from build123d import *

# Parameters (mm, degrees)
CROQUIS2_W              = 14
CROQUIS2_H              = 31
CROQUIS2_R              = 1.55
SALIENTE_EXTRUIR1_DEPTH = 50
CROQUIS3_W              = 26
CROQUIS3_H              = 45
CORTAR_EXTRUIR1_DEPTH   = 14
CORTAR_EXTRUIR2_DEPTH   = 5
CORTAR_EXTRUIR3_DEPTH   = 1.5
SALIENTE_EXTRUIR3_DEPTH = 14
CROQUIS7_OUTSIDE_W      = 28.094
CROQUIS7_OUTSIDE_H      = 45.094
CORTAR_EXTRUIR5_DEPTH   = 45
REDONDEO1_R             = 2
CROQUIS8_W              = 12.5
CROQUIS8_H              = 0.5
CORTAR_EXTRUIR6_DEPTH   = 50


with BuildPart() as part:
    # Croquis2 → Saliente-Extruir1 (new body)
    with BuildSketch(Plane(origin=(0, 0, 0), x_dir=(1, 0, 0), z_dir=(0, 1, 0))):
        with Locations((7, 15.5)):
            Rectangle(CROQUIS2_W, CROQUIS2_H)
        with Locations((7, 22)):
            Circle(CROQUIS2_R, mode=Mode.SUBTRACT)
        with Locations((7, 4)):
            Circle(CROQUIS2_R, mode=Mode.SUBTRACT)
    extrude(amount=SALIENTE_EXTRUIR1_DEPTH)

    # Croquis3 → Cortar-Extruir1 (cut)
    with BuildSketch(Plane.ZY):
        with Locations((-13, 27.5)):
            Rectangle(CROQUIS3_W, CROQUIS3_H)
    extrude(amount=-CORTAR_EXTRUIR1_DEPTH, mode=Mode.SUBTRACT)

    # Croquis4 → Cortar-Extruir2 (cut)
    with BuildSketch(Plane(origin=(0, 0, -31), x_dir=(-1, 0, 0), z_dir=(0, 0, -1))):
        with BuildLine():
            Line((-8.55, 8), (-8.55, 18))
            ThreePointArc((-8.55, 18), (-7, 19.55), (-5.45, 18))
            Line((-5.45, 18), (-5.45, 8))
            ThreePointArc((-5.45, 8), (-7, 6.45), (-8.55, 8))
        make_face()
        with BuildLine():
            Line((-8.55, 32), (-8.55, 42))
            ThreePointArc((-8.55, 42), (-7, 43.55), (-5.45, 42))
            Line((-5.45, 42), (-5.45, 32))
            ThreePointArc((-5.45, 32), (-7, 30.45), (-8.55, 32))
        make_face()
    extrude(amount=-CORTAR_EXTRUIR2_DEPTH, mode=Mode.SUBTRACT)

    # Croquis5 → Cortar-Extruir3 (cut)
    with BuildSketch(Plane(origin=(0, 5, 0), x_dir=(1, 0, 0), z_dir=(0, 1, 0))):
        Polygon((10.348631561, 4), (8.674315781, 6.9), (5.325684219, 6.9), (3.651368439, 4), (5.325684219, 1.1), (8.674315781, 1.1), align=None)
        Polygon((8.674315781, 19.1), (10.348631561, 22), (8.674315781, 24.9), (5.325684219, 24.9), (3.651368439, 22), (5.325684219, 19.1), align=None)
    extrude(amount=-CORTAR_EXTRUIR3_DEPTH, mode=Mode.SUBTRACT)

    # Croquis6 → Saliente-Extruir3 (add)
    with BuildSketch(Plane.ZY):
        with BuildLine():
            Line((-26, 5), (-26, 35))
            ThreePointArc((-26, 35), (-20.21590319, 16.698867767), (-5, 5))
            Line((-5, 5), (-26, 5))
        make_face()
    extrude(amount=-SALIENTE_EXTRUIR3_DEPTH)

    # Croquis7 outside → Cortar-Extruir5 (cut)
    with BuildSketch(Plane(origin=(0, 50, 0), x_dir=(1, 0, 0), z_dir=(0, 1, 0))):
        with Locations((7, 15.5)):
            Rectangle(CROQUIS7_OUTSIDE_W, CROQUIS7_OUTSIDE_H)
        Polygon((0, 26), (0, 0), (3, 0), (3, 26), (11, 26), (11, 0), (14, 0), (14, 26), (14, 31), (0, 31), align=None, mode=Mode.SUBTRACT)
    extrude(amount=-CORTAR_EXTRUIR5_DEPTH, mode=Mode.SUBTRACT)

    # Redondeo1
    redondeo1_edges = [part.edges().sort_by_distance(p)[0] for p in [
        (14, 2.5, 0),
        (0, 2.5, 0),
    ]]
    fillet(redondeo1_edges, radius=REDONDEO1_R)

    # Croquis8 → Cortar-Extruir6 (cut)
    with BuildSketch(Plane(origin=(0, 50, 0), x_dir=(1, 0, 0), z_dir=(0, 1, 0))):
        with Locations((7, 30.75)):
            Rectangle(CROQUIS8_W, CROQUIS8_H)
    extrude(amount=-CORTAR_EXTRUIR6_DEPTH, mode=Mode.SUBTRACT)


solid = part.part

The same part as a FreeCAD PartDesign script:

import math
import FreeCAD as App
import Part
import Sketcher

V = App.Vector
Q = App.Units.Quantity


def edges_at(feature, points):
    """Names of the edges that pass closest to the given points."""
    edges = feature.Shape.Edges
    near = lambda p: min(range(len(edges)), key=lambda i: edges[i].distToShape(Part.Vertex(*p))[0])
    return sorted({f"Edge{near(p) + 1}" for p in points})

doc = App.newDocument("Part")
body = doc.addObject("PartDesign::Body", "Body")

# Sketch on XZ plane
sketch1 = body.newObject("Sketcher::SketchObject", "Sketch")
sketch1.AttachmentSupport = (doc.getObject("XZ_Plane"), [""])
sketch1.MapMode = "FlatFace"
sketch1.addGeometry(Part.LineSegment(V(0, -31, 0), V(0, 0, 0)), False)
sketch1.addGeometry(Part.LineSegment(V(0, 0, 0), V(14, 0, 0)), False)
sketch1.addGeometry(Part.LineSegment(V(14, 0, 0), V(14, -31, 0)), False)
sketch1.addGeometry(Part.LineSegment(V(14, -31, 0), V(0, -31, 0)), False)
sketch1.addGeometry(Part.Circle(V(7, -4, 0), V(0, 0, 1), 1.55), False)
sketch1.addGeometry(Part.Circle(V(7, -22, 0), V(0, 0, 1), 1.55), False)
sketch1.addConstraint(Sketcher.Constraint("Coincident", 0, 2, 1, 1))
sketch1.addConstraint(Sketcher.Constraint("Coincident", 1, 2, 2, 1))
sketch1.addConstraint(Sketcher.Constraint("Coincident", 2, 2, 3, 1))
sketch1.addConstraint(Sketcher.Constraint("Coincident", 3, 2, 0, 1))
sketch1.addConstraint(Sketcher.Constraint("Vertical", 0))
sketch1.addConstraint(Sketcher.Constraint("Horizontal", 1))
sketch1.addConstraint(Sketcher.Constraint("Vertical", 2))
sketch1.addConstraint(Sketcher.Constraint("Horizontal", 3))
sketch1.addConstraint(Sketcher.Constraint("Coincident", 0, 2, -1, 1))
sketch1.addConstraint(Sketcher.Constraint("Equal", 4, 5))
sketch1.addConstraint(Sketcher.Constraint("Vertical", 4, 3, 5, 3))
sketch1.addConstraint(Sketcher.Constraint("Diameter", 4, Q("3.1 mm")))
sketch1.addConstraint(Sketcher.Constraint("DistanceX", 1, 1, 1, 2, Q("14 mm")))
sketch1.addConstraint(Sketcher.Constraint("DistanceY", 0, 1, 0, 2, Q("31 mm")))
sketch1.addConstraint(Sketcher.Constraint("DistanceX", -1, 1, 4, 3, Q("7 mm")))
sketch1.addConstraint(Sketcher.Constraint("DistanceY", 4, 3, -1, 1, Q("4 mm")))
sketch1.addConstraint(Sketcher.Constraint("DistanceY", 5, 3, -1, 1, Q("22 mm")))
pad1 = body.newObject("PartDesign::Pad", "Pad")
pad1.Profile = sketch1
pad1.Length = 50
pad1.Reversed = True

# Sketch on YZ plane
sketch2 = body.newObject("Sketcher::SketchObject", "Sketch001")
sketch2.AttachmentSupport = (doc.getObject("YZ_Plane"), [""])
sketch2.MapMode = "FlatFace"
sketch2.addGeometry(Part.LineSegment(V(50, -26, 0), V(5, -26, 0)), False)
sketch2.addGeometry(Part.LineSegment(V(5, -26, 0), V(5, 0, 0)), False)
sketch2.addGeometry(Part.LineSegment(V(5, 0, 0), V(50, 0, 0)), False)
sketch2.addGeometry(Part.LineSegment(V(50, 0, 0), V(50, -26, 0)), False)
sketch2.addConstraint(Sketcher.Constraint("Coincident", 0, 2, 1, 1))
sketch2.addConstraint(Sketcher.Constraint("Coincident", 1, 2, 2, 1))
sketch2.addConstraint(Sketcher.Constraint("Coincident", 2, 2, 3, 1))
sketch2.addConstraint(Sketcher.Constraint("Coincident", 3, 2, 0, 1))
sketch2.addConstraint(Sketcher.Constraint("Horizontal", 0))
sketch2.addConstraint(Sketcher.Constraint("Vertical", 1))
sketch2.addConstraint(Sketcher.Constraint("Horizontal", 2))
sketch2.addConstraint(Sketcher.Constraint("Vertical", 3))
sketch2.addConstraint(Sketcher.Constraint("PointOnObject", 1, 2, -1))
sketch2.addConstraint(Sketcher.Constraint("DistanceX", 0, 2, 0, 1, Q("45 mm")))
sketch2.addConstraint(Sketcher.Constraint("DistanceY", 1, 1, 1, 2, Q("26 mm")))
sketch2.addConstraint(Sketcher.Constraint("DistanceX", -1, 1, 0, 2, Q("5 mm")))
pocket1 = body.newObject("PartDesign::Pocket", "Pocket")
pocket1.Profile = sketch2
pocket1.Length = 14
pocket1.Reversed = True

# Sketch on XY plane
sketch3 = body.newObject("Sketcher::SketchObject", "Sketch002")
sketch3.AttachmentSupport = (doc.getObject("XY_Plane"), [""])
sketch3.MapMode = "FlatFace"
sketch3.AttachmentOffset = App.Placement(V(0, 0, -31), App.Rotation())
sketch3.addGeometry(Part.LineSegment(V(8.55, 18, 0), V(8.55, 8, 0)), False)
sketch3.addGeometry(Part.ArcOfCircle(Part.Circle(V(7, 8, 0), V(0, 0, 1), 1.55), math.radians(180), math.radians(360)), False)
sketch3.addGeometry(Part.LineSegment(V(5.45, 8, 0), V(5.45, 18, 0)), False)
sketch3.addGeometry(Part.ArcOfCircle(Part.Circle(V(7, 18, 0), V(0, 0, 1), 1.55), math.radians(0), math.radians(180)), False)
sketch3.addGeometry(Part.LineSegment(V(8.55, 42, 0), V(8.55, 32, 0)), False)
sketch3.addGeometry(Part.ArcOfCircle(Part.Circle(V(7, 32, 0), V(0, 0, 1), 1.55), math.radians(180), math.radians(360)), False)
sketch3.addGeometry(Part.LineSegment(V(5.45, 32, 0), V(5.45, 42, 0)), False)
sketch3.addGeometry(Part.ArcOfCircle(Part.Circle(V(7, 42, 0), V(0, 0, 1), 1.55), math.radians(0), math.radians(180)), False)
sketch3.addConstraint(Sketcher.Constraint("Tangent", 0, 2, 1, 2))
sketch3.addConstraint(Sketcher.Constraint("Tangent", 1, 1, 2, 1))
sketch3.addConstraint(Sketcher.Constraint("Tangent", 2, 2, 3, 2))
sketch3.addConstraint(Sketcher.Constraint("Tangent", 3, 1, 0, 1))
sketch3.addConstraint(Sketcher.Constraint("Tangent", 4, 2, 5, 2))
sketch3.addConstraint(Sketcher.Constraint("Tangent", 5, 1, 6, 1))
sketch3.addConstraint(Sketcher.Constraint("Tangent", 6, 2, 7, 2))
sketch3.addConstraint(Sketcher.Constraint("Tangent", 7, 1, 4, 1))
sketch3.addConstraint(Sketcher.Constraint("Vertical", 0))
sketch3.addConstraint(Sketcher.Constraint("Vertical", 2))
sketch3.addConstraint(Sketcher.Constraint("Vertical", 4))
sketch3.addConstraint(Sketcher.Constraint("Vertical", 6))
sketch3.addConstraint(Sketcher.Constraint("Equal", 3, 5))
sketch3.addConstraint(Sketcher.Constraint("Vertical", 3, 3, 5, 3))
sketch3.addConstraint(Sketcher.Constraint("Equal", 2, 4))
sketch3.addConstraint(Sketcher.Constraint("DistanceY", 0, 2, 0, 1, Q("10 mm")))
sketch3.addConstraint(Sketcher.Constraint("Radius", 1, Q("1.55 mm")))
sketch3.addConstraint(Sketcher.Constraint("DistanceX", -1, 1, 1, 3, Q("7 mm")))
sketch3.addConstraint(Sketcher.Constraint("DistanceY", -1, 1, 1, 3, Q("8 mm")))
sketch3.addConstraint(Sketcher.Constraint("DistanceY", -1, 1, 5, 3, Q("32 mm")))
pocket2 = body.newObject("PartDesign::Pocket", "Pocket001")
pocket2.Profile = sketch3
pocket2.Length = 5
pocket2.Reversed = True

# Sketch on XZ plane
sketch4 = body.newObject("Sketcher::SketchObject", "Sketch003")
sketch4.AttachmentSupport = (doc.getObject("XZ_Plane"), [""])
sketch4.MapMode = "FlatFace"
sketch4.AttachmentOffset = App.Placement(V(0, 0, -5), App.Rotation())
sketch4.addGeometry(Part.LineSegment(V(10.348632, -4, 0), V(8.674316, -6.9, 0)), False)
sketch4.addGeometry(Part.LineSegment(V(8.674316, -6.9, 0), V(5.325684, -6.9, 0)), False)
sketch4.addGeometry(Part.LineSegment(V(5.325684, -6.9, 0), V(3.651368, -4, 0)), False)
sketch4.addGeometry(Part.LineSegment(V(3.651368, -4, 0), V(5.325684, -1.1, 0)), False)
sketch4.addGeometry(Part.LineSegment(V(5.325684, -1.1, 0), V(8.674316, -1.1, 0)), False)
sketch4.addGeometry(Part.LineSegment(V(8.674316, -1.1, 0), V(10.348632, -4, 0)), False)
sketch4.addGeometry(Part.LineSegment(V(8.674316, -19.1, 0), V(10.348632, -22, 0)), False)
sketch4.addGeometry(Part.LineSegment(V(10.348632, -22, 0), V(8.674316, -24.9, 0)), False)
sketch4.addGeometry(Part.LineSegment(V(8.674316, -24.9, 0), V(5.325684, -24.9, 0)), False)
sketch4.addGeometry(Part.LineSegment(V(5.325684, -24.9, 0), V(3.651368, -22, 0)), False)
sketch4.addGeometry(Part.LineSegment(V(3.651368, -22, 0), V(5.325684, -19.1, 0)), False)
sketch4.addGeometry(Part.LineSegment(V(5.325684, -19.1, 0), V(8.674316, -19.1, 0)), False)
sketch4.addConstraint(Sketcher.Constraint("Coincident", 0, 2, 1, 1))
sketch4.addConstraint(Sketcher.Constraint("Coincident", 1, 2, 2, 1))
sketch4.addConstraint(Sketcher.Constraint("Coincident", 2, 2, 3, 1))
sketch4.addConstraint(Sketcher.Constraint("Coincident", 3, 2, 4, 1))
sketch4.addConstraint(Sketcher.Constraint("Coincident", 4, 2, 5, 1))
sketch4.addConstraint(Sketcher.Constraint("Coincident", 5, 2, 0, 1))
sketch4.addConstraint(Sketcher.Constraint("Coincident", 6, 2, 7, 1))
sketch4.addConstraint(Sketcher.Constraint("Coincident", 7, 2, 8, 1))
sketch4.addConstraint(Sketcher.Constraint("Coincident", 8, 2, 9, 1))
sketch4.addConstraint(Sketcher.Constraint("Coincident", 9, 2, 10, 1))
sketch4.addConstraint(Sketcher.Constraint("Coincident", 10, 2, 11, 1))
sketch4.addConstraint(Sketcher.Constraint("Coincident", 11, 2, 6, 1))
sketch4.addConstraint(Sketcher.Constraint("Horizontal", 1))
sketch4.addConstraint(Sketcher.Constraint("Horizontal", 4))
sketch4.addConstraint(Sketcher.Constraint("Horizontal", 8))
sketch4.addConstraint(Sketcher.Constraint("Horizontal", 11))
sketch4.addConstraint(Sketcher.Constraint("Parallel", 0, 3))
sketch4.addConstraint(Sketcher.Constraint("Parallel", 2, 5))
sketch4.addConstraint(Sketcher.Constraint("Parallel", 5, 6))
sketch4.addConstraint(Sketcher.Constraint("Parallel", 3, 7))
sketch4.addConstraint(Sketcher.Constraint("Parallel", 6, 9))
sketch4.addConstraint(Sketcher.Constraint("Parallel", 7, 10))
sketch4.addConstraint(Sketcher.Constraint("Horizontal", 2, 2, 5, 2))
sketch4.addConstraint(Sketcher.Constraint("Horizontal", 6, 2, 9, 2))
sketch4.addConstraint(Sketcher.Constraint("Vertical", 1, 2, 3, 2))
sketch4.addConstraint(Sketcher.Constraint("Vertical", 0, 2, 4, 2))
sketch4.addConstraint(Sketcher.Constraint("Vertical", 5, 2, 6, 2))
sketch4.addConstraint(Sketcher.Constraint("Vertical", 4, 2, 7, 2))
sketch4.addConstraint(Sketcher.Constraint("Vertical", 3, 2, 8, 2))
sketch4.addConstraint(Sketcher.Constraint("Vertical", 8, 2, 10, 2))
sketch4.addConstraint(Sketcher.Constraint("Angle", 0, Q("-120 deg")))
sketch4.addConstraint(Sketcher.Constraint("DistanceY", 2, 2, -1, 1, Q("4 mm")))
sketch4.addConstraint(Sketcher.Constraint("DistanceY", 6, 2, -1, 1, Q("22 mm")))
sketch4.addConstraint(Sketcher.Constraint("DistanceY", 0, 2, -1, 1, Q("6.9 mm")))
sketch4.addConstraint(Sketcher.Constraint("DistanceX", 1, 2, 1, 1, Q("3.348632 mm")))
sketch4.addConstraint(Sketcher.Constraint("DistanceX", -1, 1, 2, 2, Q("3.651368 mm")))
pocket3 = body.newObject("PartDesign::Pocket", "Pocket002")
pocket3.Profile = sketch4
pocket3.Length = 1.5
pocket3.Reversed = True

# Sketch on YZ plane
sketch5 = body.newObject("Sketcher::SketchObject", "Sketch004")
sketch5.AttachmentSupport = (doc.getObject("YZ_Plane"), [""])
sketch5.MapMode = "FlatFace"
sketch5.addGeometry(Part.LineSegment(V(35, -26, 0), V(5, -26, 0)), False)
sketch5.addGeometry(Part.LineSegment(V(5, -26, 0), V(5, -5, 0)), False)
sketch5.addGeometry(Part.ArcOfCircle(Part.Circle(V(35.04825, 5.9975, 0), V(0, 0, 1), 31.997536), math.radians(-159.897642), math.radians(-90.086398)), False)
sketch5.addConstraint(Sketcher.Constraint("Coincident", 0, 2, 1, 1))
sketch5.addConstraint(Sketcher.Constraint("Coincident", 1, 2, 2, 1))
sketch5.addConstraint(Sketcher.Constraint("Coincident", 2, 2, 0, 1))
sketch5.addConstraint(Sketcher.Constraint("Horizontal", 0))
sketch5.addConstraint(Sketcher.Constraint("Vertical", 1))
sketch5.addConstraint(Sketcher.Constraint("DistanceX", 0, 2, 0, 1, Q("30 mm")))
sketch5.addConstraint(Sketcher.Constraint("DistanceY", 1, 1, 1, 2, Q("21 mm")))
sketch5.addConstraint(Sketcher.Constraint("DistanceX", -1, 1, 0, 2, Q("5 mm")))
sketch5.addConstraint(Sketcher.Constraint("DistanceY", 0, 2, -1, 1, Q("26 mm")))
sketch5.addConstraint(Sketcher.Constraint("Radius", 2, Q("31.997536 mm")))
pad2 = body.newObject("PartDesign::Pad", "Pad001")
pad2.Profile = sketch5
pad2.Length = 14

# Sketch on XZ plane
sketch6 = body.newObject("Sketcher::SketchObject", "Sketch005")
sketch6.AttachmentSupport = (doc.getObject("XZ_Plane"), [""])
sketch6.MapMode = "FlatFace"
sketch6.AttachmentOffset = App.Placement(V(0, 0, -50), App.Rotation())
sketch6.addGeometry(Part.LineSegment(V(-7.047, -38.047, 0), V(-7.047, 7.047, 0)), False)
sketch6.addGeometry(Part.LineSegment(V(-7.047, 7.047, 0), V(21.047, 7.047, 0)), False)
sketch6.addGeometry(Part.LineSegment(V(21.047, 7.047, 0), V(21.047, -38.047, 0)), False)
sketch6.addGeometry(Part.LineSegment(V(21.047, -38.047, 0), V(-7.047, -38.047, 0)), False)
sketch6.addGeometry(Part.LineSegment(V(0, 0, 0), V(0, -31, 0)), False)
sketch6.addGeometry(Part.LineSegment(V(0, -31, 0), V(14, -31, 0)), False)
sketch6.addGeometry(Part.LineSegment(V(14, -31, 0), V(14, 0, 0)), False)
sketch6.addGeometry(Part.LineSegment(V(14, 0, 0), V(11, 0, 0)), False)
sketch6.addGeometry(Part.LineSegment(V(11, 0, 0), V(11, -26, 0)), False)
sketch6.addGeometry(Part.LineSegment(V(11, -26, 0), V(3, -26, 0)), False)
sketch6.addGeometry(Part.LineSegment(V(3, -26, 0), V(3, 0, 0)), False)
sketch6.addGeometry(Part.LineSegment(V(3, 0, 0), V(0, 0, 0)), False)
sketch6.addConstraint(Sketcher.Constraint("Coincident", 0, 2, 1, 1))
sketch6.addConstraint(Sketcher.Constraint("Coincident", 1, 2, 2, 1))
sketch6.addConstraint(Sketcher.Constraint("Coincident", 2, 2, 3, 1))
sketch6.addConstraint(Sketcher.Constraint("Coincident", 3, 2, 0, 1))
sketch6.addConstraint(Sketcher.Constraint("Coincident", 4, 2, 5, 1))
sketch6.addConstraint(Sketcher.Constraint("Coincident", 5, 2, 6, 1))
sketch6.addConstraint(Sketcher.Constraint("Coincident", 6, 2, 7, 1))
sketch6.addConstraint(Sketcher.Constraint("Coincident", 7, 2, 8, 1))
sketch6.addConstraint(Sketcher.Constraint("Coincident", 8, 2, 9, 1))
sketch6.addConstraint(Sketcher.Constraint("Coincident", 9, 2, 10, 1))
sketch6.addConstraint(Sketcher.Constraint("Coincident", 10, 2, 11, 1))
sketch6.addConstraint(Sketcher.Constraint("Coincident", 11, 2, 4, 1))
sketch6.addConstraint(Sketcher.Constraint("Vertical", 0))
sketch6.addConstraint(Sketcher.Constraint("Horizontal", 1))
sketch6.addConstraint(Sketcher.Constraint("Vertical", 2))
sketch6.addConstraint(Sketcher.Constraint("Horizontal", 3))
sketch6.addConstraint(Sketcher.Constraint("Vertical", 4))
sketch6.addConstraint(Sketcher.Constraint("Horizontal", 5))
sketch6.addConstraint(Sketcher.Constraint("Vertical", 6))
sketch6.addConstraint(Sketcher.Constraint("Horizontal", 7))
sketch6.addConstraint(Sketcher.Constraint("Vertical", 8))
sketch6.addConstraint(Sketcher.Constraint("Horizontal", 9))
sketch6.addConstraint(Sketcher.Constraint("Vertical", 10))
sketch6.addConstraint(Sketcher.Constraint("Horizontal", 11))
sketch6.addConstraint(Sketcher.Constraint("Coincident", 11, 2, -1, 1))
sketch6.addConstraint(Sketcher.Constraint("PointOnObject", 6, 2, -1))
sketch6.addConstraint(Sketcher.Constraint("Equal", 7, 11))
sketch6.addConstraint(Sketcher.Constraint("DistanceX", 5, 1, 5, 2, Q("14 mm")))
sketch6.addConstraint(Sketcher.Constraint("DistanceX", 7, 2, 7, 1, Q("3 mm")))
sketch6.addConstraint(Sketcher.Constraint("DistanceY", 4, 2, 4, 1, Q("31 mm")))
sketch6.addConstraint(Sketcher.Constraint("DistanceY", 8, 2, 8, 1, Q("26 mm")))
sketch6.addConstraint(Sketcher.Constraint("DistanceX", 1, 1, 1, 2, Q("28.094 mm")))
sketch6.addConstraint(Sketcher.Constraint("DistanceY", 0, 1, 0, 2, Q("45.094 mm")))
sketch6.addConstraint(Sketcher.Constraint("DistanceX", 0, 2, -1, 1, Q("7.047 mm")))
sketch6.addConstraint(Sketcher.Constraint("DistanceY", -1, 1, 0, 2, Q("7.047 mm")))
pocket4 = body.newObject("PartDesign::Pocket", "Pocket003")
pocket4.Profile = sketch6
pocket4.Length = 45
pocket4.Reversed = True
doc.recompute()

fillet = body.newObject("PartDesign::Fillet", "Fillet")
fillet.Base = (pocket4, edges_at(pocket4, [(14, 2.5, 0), (0, 2.5, 0)]))
fillet.Radius = 2

# Sketch on XZ plane
sketch7 = body.newObject("Sketcher::SketchObject", "Sketch006")
sketch7.AttachmentSupport = (doc.getObject("XZ_Plane"), [""])
sketch7.MapMode = "FlatFace"
sketch7.AttachmentOffset = App.Placement(V(0, 0, -50), App.Rotation())
sketch7.addGeometry(Part.LineSegment(V(0.75, -31, 0), V(0.75, -30.5, 0)), False)
sketch7.addGeometry(Part.LineSegment(V(0.75, -30.5, 0), V(13.25, -30.5, 0)), False)
sketch7.addGeometry(Part.LineSegment(V(13.25, -30.5, 0), V(13.25, -31, 0)), False)
sketch7.addGeometry(Part.LineSegment(V(13.25, -31, 0), V(0.75, -31, 0)), False)
sketch7.addConstraint(Sketcher.Constraint("Coincident", 0, 2, 1, 1))
sketch7.addConstraint(Sketcher.Constraint("Coincident", 1, 2, 2, 1))
sketch7.addConstraint(Sketcher.Constraint("Coincident", 2, 2, 3, 1))
sketch7.addConstraint(Sketcher.Constraint("Coincident", 3, 2, 0, 1))
sketch7.addConstraint(Sketcher.Constraint("Vertical", 0))
sketch7.addConstraint(Sketcher.Constraint("Horizontal", 1))
sketch7.addConstraint(Sketcher.Constraint("Vertical", 2))
sketch7.addConstraint(Sketcher.Constraint("Horizontal", 3))
sketch7.addConstraint(Sketcher.Constraint("DistanceX", 1, 1, 1, 2, Q("12.5 mm")))
sketch7.addConstraint(Sketcher.Constraint("DistanceY", 0, 1, 0, 2, Q("0.5 mm")))
sketch7.addConstraint(Sketcher.Constraint("DistanceY", 2, 2, -1, 1, Q("31 mm")))
sketch7.addConstraint(Sketcher.Constraint("DistanceX", -1, 1, 0, 2, Q("0.75 mm")))
pocket5 = body.newObject("PartDesign::Pocket", "Pocket004")
pocket5.Profile = sketch7
pocket5.Length = 50
pocket5.Reversed = True

doc.recompute()
